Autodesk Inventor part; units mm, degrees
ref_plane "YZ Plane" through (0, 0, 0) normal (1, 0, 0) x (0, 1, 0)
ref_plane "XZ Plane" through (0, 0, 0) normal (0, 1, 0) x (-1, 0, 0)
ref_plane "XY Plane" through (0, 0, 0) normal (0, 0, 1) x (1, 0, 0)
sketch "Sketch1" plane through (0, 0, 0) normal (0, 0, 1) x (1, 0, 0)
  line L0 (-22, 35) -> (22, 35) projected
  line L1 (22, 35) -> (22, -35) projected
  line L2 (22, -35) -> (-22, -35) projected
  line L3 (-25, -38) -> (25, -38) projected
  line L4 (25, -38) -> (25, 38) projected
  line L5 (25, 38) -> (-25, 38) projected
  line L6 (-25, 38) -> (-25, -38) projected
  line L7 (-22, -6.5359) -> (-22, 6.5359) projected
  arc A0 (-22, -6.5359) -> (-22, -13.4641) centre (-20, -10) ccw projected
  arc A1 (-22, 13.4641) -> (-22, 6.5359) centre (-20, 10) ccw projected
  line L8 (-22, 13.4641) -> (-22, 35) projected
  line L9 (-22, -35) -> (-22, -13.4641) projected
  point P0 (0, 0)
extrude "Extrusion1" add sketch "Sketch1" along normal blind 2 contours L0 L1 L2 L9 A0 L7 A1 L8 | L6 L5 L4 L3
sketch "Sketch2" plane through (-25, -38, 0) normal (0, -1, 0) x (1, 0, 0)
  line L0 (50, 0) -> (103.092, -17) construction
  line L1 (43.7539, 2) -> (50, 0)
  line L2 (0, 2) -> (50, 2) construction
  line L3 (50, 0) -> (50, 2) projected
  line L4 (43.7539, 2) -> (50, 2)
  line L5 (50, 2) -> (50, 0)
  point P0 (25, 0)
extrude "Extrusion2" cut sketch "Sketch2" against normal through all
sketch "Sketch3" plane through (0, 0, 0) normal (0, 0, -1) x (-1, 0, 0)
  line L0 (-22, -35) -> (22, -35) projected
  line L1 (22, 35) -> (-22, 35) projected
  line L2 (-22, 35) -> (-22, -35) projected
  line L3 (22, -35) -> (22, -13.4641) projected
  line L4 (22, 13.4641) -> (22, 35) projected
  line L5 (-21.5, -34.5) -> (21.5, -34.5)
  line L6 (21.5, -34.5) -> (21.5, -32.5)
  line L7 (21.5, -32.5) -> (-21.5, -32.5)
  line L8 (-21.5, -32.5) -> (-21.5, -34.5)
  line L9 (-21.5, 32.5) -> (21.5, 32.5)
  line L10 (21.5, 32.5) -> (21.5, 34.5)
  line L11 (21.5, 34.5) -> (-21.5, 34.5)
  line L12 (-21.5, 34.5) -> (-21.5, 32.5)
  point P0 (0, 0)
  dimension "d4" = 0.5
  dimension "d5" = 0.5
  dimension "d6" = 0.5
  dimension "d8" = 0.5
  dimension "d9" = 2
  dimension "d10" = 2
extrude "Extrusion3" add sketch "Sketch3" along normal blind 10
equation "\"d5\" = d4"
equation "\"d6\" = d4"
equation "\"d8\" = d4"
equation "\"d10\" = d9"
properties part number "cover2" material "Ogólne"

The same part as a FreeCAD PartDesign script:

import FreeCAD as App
import Part
import Sketcher

V = App.Vector

doc = App.newDocument("Part")
params = doc.addObject("Spreadsheet::Sheet", "Params")
for row, (alias, value) in enumerate([
    ("sketch1_width", "50 mm"),
    ("sketch1_height", "76 mm"),
    ("pad1_length", "2 mm"),
    ("sketch2_height", "2 mm"),
    ("sketch3_height", "2 mm"),
    ("sketch3_width", "43 mm"),
    ("pad2_length", "10 mm"),
], start=1):
    params.set(f"A{row}", alias)
    params.set(f"B{row}", "=" + value)
    params.setAlias(f"B{row}", alias)

body = doc.addObject("PartDesign::Body", "Body")

# Sketch on XY plane
sketch1 = doc.addObject("Sketcher::SketchObject", "Sketch")
body.addObject(sketch1)
sketch1.AttachmentSupport = (doc.XY_Plane, [""])
sketch1.MapMode = "FlatFace"
sketch1.addGeometry([
    Part.LineSegment(V(-25, 38, 0), V(-25, -38, 0)),
    Part.LineSegment(V(-25, -38, 0), V(25, -38, 0)),
    Part.LineSegment(V(25, -38, 0), V(25, 38, 0)),
    Part.LineSegment(V(25, 38, 0), V(-25, 38, 0)),
], False)
sketch1.addConstraint([
    Sketcher.Constraint("Coincident", 0, 2, 1, 1),
    Sketcher.Constraint("Coincident", 1, 2, 2, 1),
    Sketcher.Constraint("Coincident", 2, 2, 3, 1),
    Sketcher.Constraint("Coincident", 3, 2, 0, 1),
    Sketcher.Constraint("Vertical", 0),
    Sketcher.Constraint("Horizontal", 1),
    Sketcher.Constraint("Vertical", 2),
    Sketcher.Constraint("Horizontal", 3),
    Sketcher.Constraint("Symmetric", 0, 2, 2, 2, -1, 1),
    Sketcher.Constraint("DistanceX", 1, 1, 1, 2, 50.0),
    Sketcher.Constraint("DistanceY", 0, 2, 0, 1, 76.0),
])
sketch1.setExpression("Constraints[9]", "Params.sketch1_width")
sketch1.setExpression("Constraints[10]", "Params.sketch1_height")
pad1 = doc.addObject("PartDesign::Pad", "Pad")
body.addObject(pad1)
pad1.Profile = sketch1
pad1.setExpression("Length", "Params.pad1_length")

# Sketch on XZ plane
sketch2 = doc.addObject("Sketcher::SketchObject", "Sketch001")
body.addObject(sketch2)
sketch2.AttachmentSupport = (doc.XZ_Plane, [""])
sketch2.MapMode = "FlatFace"
sketch2.AttachmentOffset = App.Placement(V(0, 0, 38), App.Rotation())
sketch2.addGeometry([
    Part.LineSegment(V(25, 2, 0), V(18.7539, 2, 0)),
    Part.LineSegment(V(18.7539, 2, 0), V(25, 0, 0)),
    Part.LineSegment(V(25, 0, 0), V(25, 2, 0)),
], False)
sketch2.addConstraint([
    Sketcher.Constraint("Coincident", 0, 2, 1, 1),
    Sketcher.Constraint("Coincident", 1, 2, 2, 1),
    Sketcher.Constraint("Coincident", 2, 2, 0, 1),
    Sketcher.Constraint("Horizontal", 0),
    Sketcher.Constraint("Vertical", 2),
    Sketcher.Constraint("PointOnObject", 1, 2, -1),
    Sketcher.Constraint("DistanceY", 2, 1, 2, 2, 2.0),
    Sketcher.Constraint("DistanceX", -1, 1, 1, 2, 25.0),
    Sketcher.Constraint("DistanceX", 0, 2, 0, 1, 6.246),
])
sketch2.setExpression("Constraints[6]", "Params.sketch2_height")
pocket1 = doc.addObject("PartDesign::Pocket", "Pocket")
body.addObject(pocket1)
pocket1.Profile = sketch2
pocket1.Type = "ThroughAll"

# Sketch on XY plane
sketch3 = doc.addObject("Sketcher::SketchObject", "Sketch002")
body.addObject(sketch3)
sketch3.AttachmentSupport = (doc.XY_Plane, [""])
sketch3.MapMode = "FlatFace"
sketch3.addGeometry([
    Part.LineSegment(V(21.5, -32.5, 0), V(21.5, -34.5, 0)),  # 0
    Part.LineSegment(V(21.5, -34.5, 0), V(-21.5, -34.5, 0)),  # 1
    Part.LineSegment(V(-21.5, -34.5, 0), V(-21.5, -32.5, 0)),  # 2
    Part.LineSegment(V(-21.5, -32.5, 0), V(21.5, -32.5, 0)),  # 3
    Part.LineSegment(V(21.5, 34.5, 0), V(21.5, 32.5, 0)),  # 4
    Part.LineSegment(V(21.5, 32.5, 0), V(-21.5, 32.5, 0)),  # 5
    Part.LineSegment(V(-21.5, 32.5, 0), V(-21.5, 34.5, 0)),  # 6
    Part.LineSegment(V(-21.5, 34.5, 0), V(21.5, 34.5, 0)),  # 7
], False)
sketch3.addConstraint([
    Sketcher.Constraint("Coincident", 0, 2, 1, 1),
    Sketcher.Constraint("Coincident", 1, 2, 2, 1),
    Sketcher.Constraint("Coincident", 2, 2, 3, 1),
    Sketcher.Constraint("Coincident", 3, 2, 0, 1),
    Sketcher.Constraint("Coincident", 4, 2, 5, 1),
    Sketcher.Constraint("Coincident", 5, 2, 6, 1),
    Sketcher.Constraint("Coincident", 6, 2, 7, 1),
    Sketcher.Constraint("Coincident", 7, 2, 4, 1),
    Sketcher.Constraint("Vertical", 0),
    Sketcher.Constraint("Horizontal", 1),
    Sketcher.Constraint("Vertical", 2),
    Sketcher.Constraint("Horizontal", 3),
    Sketcher.Constraint("Vertical", 4),
    Sketcher.Constraint("Horizontal", 5),
    Sketcher.Constraint("Vertical", 6),
    Sketcher.Constraint("Horizontal", 7),
    Sketcher.Constraint("Symmetric", 2, 2, 4, 2, -1, 1),
    Sketcher.Constraint("Symmetric", 0, 2, 6, 2, -1, 1),
    Sketcher.Constraint("Vertical", 3, 2, 4, 2),
    Sketcher.Constraint("DistanceY", 0, 2, 0, 1, 2.0),
    Sketcher.Constraint("DistanceX", 1, 2, 1, 1, 43.0),
    Sketcher.Constraint("DistanceY", 3, 2, 4, 2, 65.0),
])
sketch3.setExpression("Constraints[19]", "Params.sketch3_height")
sketch3.setExpression("Constraints[20]", "Params.sketch3_width")
pad2 = doc.addObject("PartDesign::Pad", "Pad001")
body.addObject(pad2)
pad2.Profile = sketch3
pad2.setExpression("Length", "Params.pad2_length")
pad2.Reversed = True

doc.recompute()
